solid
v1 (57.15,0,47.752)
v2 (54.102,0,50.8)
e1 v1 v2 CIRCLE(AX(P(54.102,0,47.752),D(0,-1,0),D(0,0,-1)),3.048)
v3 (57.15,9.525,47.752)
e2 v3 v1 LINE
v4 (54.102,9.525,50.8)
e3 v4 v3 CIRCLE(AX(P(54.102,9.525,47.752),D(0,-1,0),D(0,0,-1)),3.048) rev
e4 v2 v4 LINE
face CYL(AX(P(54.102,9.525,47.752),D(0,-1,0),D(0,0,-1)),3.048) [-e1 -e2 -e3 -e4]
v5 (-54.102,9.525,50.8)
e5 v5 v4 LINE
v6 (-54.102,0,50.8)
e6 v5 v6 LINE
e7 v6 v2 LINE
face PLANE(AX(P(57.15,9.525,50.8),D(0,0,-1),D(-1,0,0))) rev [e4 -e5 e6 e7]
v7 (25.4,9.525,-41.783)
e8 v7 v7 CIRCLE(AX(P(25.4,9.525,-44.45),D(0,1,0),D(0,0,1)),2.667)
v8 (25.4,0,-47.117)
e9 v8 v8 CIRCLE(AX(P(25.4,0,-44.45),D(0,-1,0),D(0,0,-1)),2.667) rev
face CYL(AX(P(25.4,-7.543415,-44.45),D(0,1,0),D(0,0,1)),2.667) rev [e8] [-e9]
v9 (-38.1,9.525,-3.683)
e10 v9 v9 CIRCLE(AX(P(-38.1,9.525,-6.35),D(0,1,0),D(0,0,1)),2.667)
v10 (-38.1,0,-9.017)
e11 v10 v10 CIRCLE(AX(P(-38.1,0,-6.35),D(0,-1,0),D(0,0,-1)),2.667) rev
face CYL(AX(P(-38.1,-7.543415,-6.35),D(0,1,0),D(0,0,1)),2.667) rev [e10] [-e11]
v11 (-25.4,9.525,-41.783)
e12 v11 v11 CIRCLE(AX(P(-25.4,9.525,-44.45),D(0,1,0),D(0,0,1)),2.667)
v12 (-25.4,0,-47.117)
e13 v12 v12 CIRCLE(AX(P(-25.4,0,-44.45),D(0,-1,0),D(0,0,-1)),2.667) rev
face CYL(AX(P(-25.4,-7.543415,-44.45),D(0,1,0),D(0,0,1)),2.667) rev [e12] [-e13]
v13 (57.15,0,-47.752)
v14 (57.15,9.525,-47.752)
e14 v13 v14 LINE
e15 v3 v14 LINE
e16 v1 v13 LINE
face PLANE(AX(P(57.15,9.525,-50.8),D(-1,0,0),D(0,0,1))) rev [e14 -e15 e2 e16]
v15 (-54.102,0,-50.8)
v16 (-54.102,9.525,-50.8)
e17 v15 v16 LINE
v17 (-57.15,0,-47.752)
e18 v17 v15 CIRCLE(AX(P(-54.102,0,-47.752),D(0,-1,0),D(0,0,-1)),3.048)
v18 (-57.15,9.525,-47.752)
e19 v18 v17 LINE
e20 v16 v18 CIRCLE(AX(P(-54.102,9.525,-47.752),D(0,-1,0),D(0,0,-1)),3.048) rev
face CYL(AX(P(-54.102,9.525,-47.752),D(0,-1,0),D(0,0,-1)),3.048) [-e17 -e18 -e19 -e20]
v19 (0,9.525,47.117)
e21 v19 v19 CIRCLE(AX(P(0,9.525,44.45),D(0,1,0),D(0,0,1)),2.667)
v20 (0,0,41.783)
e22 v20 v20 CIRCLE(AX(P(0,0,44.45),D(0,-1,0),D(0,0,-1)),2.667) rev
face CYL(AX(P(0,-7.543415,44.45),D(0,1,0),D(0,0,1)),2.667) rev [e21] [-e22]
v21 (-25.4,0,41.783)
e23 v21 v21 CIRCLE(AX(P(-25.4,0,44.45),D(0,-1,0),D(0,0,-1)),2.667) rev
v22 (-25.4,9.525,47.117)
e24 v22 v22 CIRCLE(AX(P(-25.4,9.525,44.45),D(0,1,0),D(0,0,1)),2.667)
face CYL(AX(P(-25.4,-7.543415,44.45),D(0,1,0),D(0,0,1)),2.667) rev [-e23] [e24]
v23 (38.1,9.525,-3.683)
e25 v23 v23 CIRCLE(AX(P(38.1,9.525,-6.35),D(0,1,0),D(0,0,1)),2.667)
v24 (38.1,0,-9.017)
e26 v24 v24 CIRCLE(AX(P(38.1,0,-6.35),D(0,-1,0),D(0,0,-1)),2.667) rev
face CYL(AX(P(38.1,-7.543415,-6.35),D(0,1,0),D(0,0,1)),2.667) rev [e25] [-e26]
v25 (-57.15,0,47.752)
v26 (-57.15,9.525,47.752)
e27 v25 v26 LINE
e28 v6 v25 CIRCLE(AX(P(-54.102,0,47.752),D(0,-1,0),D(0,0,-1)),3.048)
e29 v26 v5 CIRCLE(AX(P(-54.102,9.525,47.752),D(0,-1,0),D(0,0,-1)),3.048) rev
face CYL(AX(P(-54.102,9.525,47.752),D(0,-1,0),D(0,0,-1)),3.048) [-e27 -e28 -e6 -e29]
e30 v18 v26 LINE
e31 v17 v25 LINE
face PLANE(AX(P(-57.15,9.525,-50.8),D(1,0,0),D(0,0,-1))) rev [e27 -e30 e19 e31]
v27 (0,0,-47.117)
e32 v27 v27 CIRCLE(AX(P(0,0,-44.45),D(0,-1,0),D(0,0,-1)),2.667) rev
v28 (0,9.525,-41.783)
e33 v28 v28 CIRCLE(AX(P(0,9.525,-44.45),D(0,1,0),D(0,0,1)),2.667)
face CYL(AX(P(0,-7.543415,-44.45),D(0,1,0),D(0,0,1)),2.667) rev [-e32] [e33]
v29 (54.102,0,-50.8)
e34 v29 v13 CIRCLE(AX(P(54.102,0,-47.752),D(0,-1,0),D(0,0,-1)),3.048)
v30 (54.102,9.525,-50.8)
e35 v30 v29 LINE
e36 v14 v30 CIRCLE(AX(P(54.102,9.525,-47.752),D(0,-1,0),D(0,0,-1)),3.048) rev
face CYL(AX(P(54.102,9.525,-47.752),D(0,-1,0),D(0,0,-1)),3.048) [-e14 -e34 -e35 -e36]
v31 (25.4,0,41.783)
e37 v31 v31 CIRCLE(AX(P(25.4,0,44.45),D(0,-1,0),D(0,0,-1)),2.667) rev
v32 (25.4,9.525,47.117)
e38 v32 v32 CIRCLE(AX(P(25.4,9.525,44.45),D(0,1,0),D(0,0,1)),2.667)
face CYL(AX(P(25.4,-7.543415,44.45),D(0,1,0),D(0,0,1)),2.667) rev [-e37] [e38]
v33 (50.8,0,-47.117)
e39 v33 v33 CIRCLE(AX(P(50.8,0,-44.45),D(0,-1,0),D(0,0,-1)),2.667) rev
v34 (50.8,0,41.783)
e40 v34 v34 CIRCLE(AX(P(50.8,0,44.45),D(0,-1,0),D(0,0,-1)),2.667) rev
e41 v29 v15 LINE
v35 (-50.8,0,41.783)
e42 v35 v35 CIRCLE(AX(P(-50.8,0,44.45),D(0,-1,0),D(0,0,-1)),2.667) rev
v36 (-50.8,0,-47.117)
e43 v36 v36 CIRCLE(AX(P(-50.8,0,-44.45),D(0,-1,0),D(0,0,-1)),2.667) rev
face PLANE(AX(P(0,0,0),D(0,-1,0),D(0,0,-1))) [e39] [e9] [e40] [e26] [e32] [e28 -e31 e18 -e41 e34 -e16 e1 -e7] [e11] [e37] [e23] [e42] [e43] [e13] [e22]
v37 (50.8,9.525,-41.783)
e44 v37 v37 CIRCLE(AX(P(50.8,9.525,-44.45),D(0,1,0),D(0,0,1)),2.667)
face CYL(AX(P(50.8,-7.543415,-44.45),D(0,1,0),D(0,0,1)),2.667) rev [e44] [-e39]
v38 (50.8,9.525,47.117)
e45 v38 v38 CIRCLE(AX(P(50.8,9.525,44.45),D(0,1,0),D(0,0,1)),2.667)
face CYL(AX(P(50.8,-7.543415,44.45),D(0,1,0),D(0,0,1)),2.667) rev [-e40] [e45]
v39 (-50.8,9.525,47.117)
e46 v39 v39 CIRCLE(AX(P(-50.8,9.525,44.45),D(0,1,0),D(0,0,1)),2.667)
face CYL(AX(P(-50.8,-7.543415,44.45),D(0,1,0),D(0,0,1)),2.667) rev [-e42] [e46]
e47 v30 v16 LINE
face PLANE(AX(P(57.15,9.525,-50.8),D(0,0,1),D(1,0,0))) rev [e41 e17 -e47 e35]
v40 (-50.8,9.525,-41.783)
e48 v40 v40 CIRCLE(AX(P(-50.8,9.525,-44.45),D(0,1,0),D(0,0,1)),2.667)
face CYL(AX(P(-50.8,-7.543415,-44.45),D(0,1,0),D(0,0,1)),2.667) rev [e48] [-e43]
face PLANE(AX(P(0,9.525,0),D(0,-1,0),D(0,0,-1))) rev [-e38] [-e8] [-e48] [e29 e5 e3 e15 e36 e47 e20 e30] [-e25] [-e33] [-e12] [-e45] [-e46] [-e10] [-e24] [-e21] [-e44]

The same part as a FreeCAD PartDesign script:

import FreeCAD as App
import Part
import Sketcher
Q = App.Units.Quantity


def edges_at(feature, points):
    """Names of the edges that pass closest to the given points."""
    edges = feature.Shape.Edges
    near = lambda p: min(range(len(edges)), key=lambda i: edges[i].distToShape(Part.Vertex(*p))[0])
    return sorted({f"Edge{near(p) + 1}" for p in points})

doc = App.newDocument("Part")
params = doc.addObject("Spreadsheet::Sheet", "Params")
for row, (alias, value) in enumerate([
    ("sketch1_height", "4 in"),
    ("sketch1_width", "4.5 in"),
    ("pad1_length", "0.375 in"),
    ("fillet_radius", "0.12 in"),
    ("sketch2_diameter", "0.21 in"),
    ("pocket1_length", "0.375 in"),
], start=1):
    params.set(f"A{row}", alias)
    params.set(f"B{row}", "=" + value)
    params.setAlias(f"B{row}", alias)

body = doc.addObject("PartDesign::Body", "Body")

sketch1 = doc.addObject("Sketcher::SketchObject", "Sketch")
body.addObject(sketch1)
sketch1.AttachmentSupport = (doc.XZ_Plane, [""])
sketch1.MapMode = "FlatFace"
sketch1.addGeometry([
    Part.LineSegment(App.Vector(-57, -51, 0), App.Vector(-57, 51, 0)),
    Part.LineSegment(App.Vector(-57, 51, 0), App.Vector(57, 51, 0)),
    Part.LineSegment(App.Vector(57, 51, 0), App.Vector(57, -51, 0)),
    Part.LineSegment(App.Vector(57, -51, 0), App.Vector(-57, -51, 0)),
], False)
sketch1.addConstraint([
    Sketcher.Constraint("Coincident", 0, 2, 1, 1),
    Sketcher.Constraint("Coincident", 1, 2, 2, 1),
    Sketcher.Constraint("Coincident", 2, 2, 3, 1),
    Sketcher.Constraint("Coincident", 3, 2, 0, 1),
    Sketcher.Constraint("Vertical", 0),
    Sketcher.Constraint("Horizontal", 1),
    Sketcher.Constraint("Vertical", 2),
    Sketcher.Constraint("Horizontal", 3),
    Sketcher.Constraint("Symmetric", 0, 2, 2, 2, -1, 1),
    Sketcher.Constraint("DistanceY", 0, 1, 0, 2, Q("4 in")),
    Sketcher.Constraint("DistanceX", 1, 1, 1, 2, Q("4.5 in")),
])
sketch1.setExpression("Constraints[9]", "Params.sketch1_height")
sketch1.setExpression("Constraints[10]", "Params.sketch1_width")
pad1 = doc.addObject("PartDesign::Pad", "Pad")
body.addObject(pad1)
pad1.Profile = sketch1
pad1.setExpression("Length", "Params.pad1_length")
pad1.Reversed = True
doc.recompute()

fillet = doc.addObject("PartDesign::Fillet", "Fillet")
body.addObject(fillet)
fillet.Base = (pad1, edges_at(pad1, [
    (-57.15, 4.763, -50.8),
    (57.15, 4.763, -50.8),
    (57.15, 4.763, 50.8),
    (-57.15, 4.763, 50.8),
]))
fillet.setExpression("Radius", "Params.fillet_radius")

sketch2 = doc.addObject("Sketcher::SketchObject", "Sketch001")
body.addObject(sketch2)
sketch2.AttachmentSupport = (doc.XZ_Plane, [""])
sketch2.MapMode = "FlatFace"
sketch2.AttachmentOffset = App.Placement(App.Vector(0, 0, -0.375 * 25.4), App.Rotation())
sketch2.addGeometry([
    Part.Circle(App.Vector(50.8, -44.5, 0), App.Vector(0, 0, 1), 2.7),
    Part.Circle(App.Vector(25.4, -44.5, 0), App.Vector(0, 0, 1), 2.7),
    Part.Circle(App.Vector(0, -44.5, 0), App.Vector(0, 0, 1), 2.7),
    Part.Circle(App.Vector(-25.4, -44.5, 0), App.Vector(0, 0, 1), 2.7),
    Part.Circle(App.Vector(-50.8, -44.5, 0), App.Vector(0, 0, 1), 2.7),
    Part.Circle(App.Vector(25.4, 44.5, 0), App.Vector(0, 0, 1), 2.7),
    Part.Circle(App.Vector(0, 44.5, 0), App.Vector(0, 0, 1), 2.7),
    Part.Circle(App.Vector(-25.4, 44.5, 0), App.Vector(0, 0, 1), 2.7),
    Part.Circle(App.Vector(-50.8, 44.5, 0), App.Vector(0, 0, 1), 2.7),
    Part.Circle(App.Vector(50.8, 44.5, 0), App.Vector(0, 0, 1), 2.7),
    Part.Circle(App.Vector(38.1, -6.3, 0), App.Vector(0, 0, 1), 2.7),
    Part.Circle(App.Vector(-38.1, -6.3, 0), App.Vector(0, 0, 1), 2.7),
], False)
sketch2.addConstraint([
    Sketcher.Constraint("Equal", 0, 1),
    Sketcher.Constraint("Equal", 1, 2),
    Sketcher.Constraint("Equal", 2, 3),
    Sketcher.Constraint("Equal", 3, 4),
    Sketcher.Constraint("Equal", 4, 5),
    Sketcher.Constraint("Equal", 5, 6),
    Sketcher.Constraint("Equal", 6, 7),
    Sketcher.Constraint("Equal", 7, 8),
    Sketcher.Constraint("Equal", 8, 9),
    Sketcher.Constraint("Equal", 9, 10),
    Sketcher.Constraint("Equal", 10, 11),
    Sketcher.Constraint("Symmetric", 3, 3, 5, 3, -1, 1),
    Sketcher.Constraint("Symmetric", 2, 3, 6, 3, -1, 1),
    Sketcher.Constraint("Symmetric", 1, 3, 7, 3, -1, 1),
    Sketcher.Constraint("Symmetric", 0, 3, 8, 3, -1, 1),
    Sketcher.Constraint("Symmetric", 4, 3, 9, 3, -1, 1),
    Sketcher.Constraint("Symmetric", 1, 3, 3, 3, -2),
    Sketcher.Constraint("Symmetric", 0, 3, 4, 3, -2),
    Sketcher.Constraint("Symmetric", 10, 3, 11, 3, -2),
    Sketcher.Constraint("PointOnObject", 2, 3, -2),
    Sketcher.Constraint("Horizontal", 0, 3, 1, 3),
    Sketcher.Constraint("Horizontal", 1, 3, 2, 3),
    Sketcher.Constraint("Diameter", 0, Q("0.21 in")),
    Sketcher.Constraint("DistanceX", -1, 1, 0, 3, Q("2 in")),
    Sketcher.Constraint("DistanceX", -1, 1, 1, 3, Q("1 in")),
    Sketcher.Constraint("DistanceY", 10, 3, 5, 3, Q("2 in")),
    Sketcher.Constraint("DistanceX", -1, 1, 10, 3, Q("1.5 in")),
    Sketcher.Constraint("DistanceY", 1, 3, 5, 3, Q("3.5 in")),
])
sketch2.setExpression("Constraints[22]", "Params.sketch2_diameter")
pocket1 = doc.addObject("PartDesign::Pocket", "Pocket")
body.addObject(pocket1)
pocket1.Profile = sketch2
pocket1.setExpression("Length", "Params.pocket1_length")
pocket1.Reversed = True

doc.recompute()
